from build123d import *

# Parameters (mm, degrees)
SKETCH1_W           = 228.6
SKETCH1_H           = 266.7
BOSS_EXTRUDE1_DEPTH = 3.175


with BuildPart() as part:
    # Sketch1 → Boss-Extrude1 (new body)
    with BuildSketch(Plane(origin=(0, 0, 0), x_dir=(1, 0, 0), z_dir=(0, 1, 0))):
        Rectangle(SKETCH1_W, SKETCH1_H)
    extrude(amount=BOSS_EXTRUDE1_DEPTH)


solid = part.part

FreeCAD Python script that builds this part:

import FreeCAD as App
import Part
import Sketcher
Q = App.Units.Quantity


def add_polygon(sketch, points):
    """Adds a closed chain of lines whose ends are joined by coincident constraints."""
    first, n = sketch.GeometryCount, len(points)
    for a, b in zip(points, points[1:] + points[:1]):
        sketch.addGeometry(Part.LineSegment(App.Vector(*a, 0), App.Vector(*b, 0)), False)
    for i in range(n):
        sketch.addConstraint(Sketcher.Constraint("Coincident", first + i, 2, first + (i + 1) % n, 1))

doc = App.newDocument("Part")
body = doc.addObject("PartDesign::Body", "Body")

# Sketch on XZ plane
sketch1 = body.newObject("Sketcher::SketchObject", "Sketch")
sketch1.AttachmentSupport = (doc.getObject("XZ_Plane"), [""])
sketch1.MapMode = "FlatFace"
add_polygon(sketch1, [(-114, -133), (-114, 133), (114, 133), (114, -133)])  # lines 0-3
sketch1.addConstraint([
    Sketcher.Constraint("Vertical", 0),
    Sketcher.Constraint("Horizontal", 1),
    Sketcher.Constraint("Vertical", 2),
    Sketcher.Constraint("Horizontal", 3),
    Sketcher.Constraint("Symmetric", 0, 2, 2, 2, -1, 1),
    Sketcher.Constraint("DistanceX", 1, 1, 1, 2, Q("9 in")),
    Sketcher.Constraint("DistanceY", 0, 1, 0, 2, Q("10.5 in")),
])
pad1 = body.newObject("PartDesign::Pad", "Pad")
pad1.Profile = sketch1
pad1.Length = Q("0.125 in")
pad1.Reversed = True

doc.recompute()
